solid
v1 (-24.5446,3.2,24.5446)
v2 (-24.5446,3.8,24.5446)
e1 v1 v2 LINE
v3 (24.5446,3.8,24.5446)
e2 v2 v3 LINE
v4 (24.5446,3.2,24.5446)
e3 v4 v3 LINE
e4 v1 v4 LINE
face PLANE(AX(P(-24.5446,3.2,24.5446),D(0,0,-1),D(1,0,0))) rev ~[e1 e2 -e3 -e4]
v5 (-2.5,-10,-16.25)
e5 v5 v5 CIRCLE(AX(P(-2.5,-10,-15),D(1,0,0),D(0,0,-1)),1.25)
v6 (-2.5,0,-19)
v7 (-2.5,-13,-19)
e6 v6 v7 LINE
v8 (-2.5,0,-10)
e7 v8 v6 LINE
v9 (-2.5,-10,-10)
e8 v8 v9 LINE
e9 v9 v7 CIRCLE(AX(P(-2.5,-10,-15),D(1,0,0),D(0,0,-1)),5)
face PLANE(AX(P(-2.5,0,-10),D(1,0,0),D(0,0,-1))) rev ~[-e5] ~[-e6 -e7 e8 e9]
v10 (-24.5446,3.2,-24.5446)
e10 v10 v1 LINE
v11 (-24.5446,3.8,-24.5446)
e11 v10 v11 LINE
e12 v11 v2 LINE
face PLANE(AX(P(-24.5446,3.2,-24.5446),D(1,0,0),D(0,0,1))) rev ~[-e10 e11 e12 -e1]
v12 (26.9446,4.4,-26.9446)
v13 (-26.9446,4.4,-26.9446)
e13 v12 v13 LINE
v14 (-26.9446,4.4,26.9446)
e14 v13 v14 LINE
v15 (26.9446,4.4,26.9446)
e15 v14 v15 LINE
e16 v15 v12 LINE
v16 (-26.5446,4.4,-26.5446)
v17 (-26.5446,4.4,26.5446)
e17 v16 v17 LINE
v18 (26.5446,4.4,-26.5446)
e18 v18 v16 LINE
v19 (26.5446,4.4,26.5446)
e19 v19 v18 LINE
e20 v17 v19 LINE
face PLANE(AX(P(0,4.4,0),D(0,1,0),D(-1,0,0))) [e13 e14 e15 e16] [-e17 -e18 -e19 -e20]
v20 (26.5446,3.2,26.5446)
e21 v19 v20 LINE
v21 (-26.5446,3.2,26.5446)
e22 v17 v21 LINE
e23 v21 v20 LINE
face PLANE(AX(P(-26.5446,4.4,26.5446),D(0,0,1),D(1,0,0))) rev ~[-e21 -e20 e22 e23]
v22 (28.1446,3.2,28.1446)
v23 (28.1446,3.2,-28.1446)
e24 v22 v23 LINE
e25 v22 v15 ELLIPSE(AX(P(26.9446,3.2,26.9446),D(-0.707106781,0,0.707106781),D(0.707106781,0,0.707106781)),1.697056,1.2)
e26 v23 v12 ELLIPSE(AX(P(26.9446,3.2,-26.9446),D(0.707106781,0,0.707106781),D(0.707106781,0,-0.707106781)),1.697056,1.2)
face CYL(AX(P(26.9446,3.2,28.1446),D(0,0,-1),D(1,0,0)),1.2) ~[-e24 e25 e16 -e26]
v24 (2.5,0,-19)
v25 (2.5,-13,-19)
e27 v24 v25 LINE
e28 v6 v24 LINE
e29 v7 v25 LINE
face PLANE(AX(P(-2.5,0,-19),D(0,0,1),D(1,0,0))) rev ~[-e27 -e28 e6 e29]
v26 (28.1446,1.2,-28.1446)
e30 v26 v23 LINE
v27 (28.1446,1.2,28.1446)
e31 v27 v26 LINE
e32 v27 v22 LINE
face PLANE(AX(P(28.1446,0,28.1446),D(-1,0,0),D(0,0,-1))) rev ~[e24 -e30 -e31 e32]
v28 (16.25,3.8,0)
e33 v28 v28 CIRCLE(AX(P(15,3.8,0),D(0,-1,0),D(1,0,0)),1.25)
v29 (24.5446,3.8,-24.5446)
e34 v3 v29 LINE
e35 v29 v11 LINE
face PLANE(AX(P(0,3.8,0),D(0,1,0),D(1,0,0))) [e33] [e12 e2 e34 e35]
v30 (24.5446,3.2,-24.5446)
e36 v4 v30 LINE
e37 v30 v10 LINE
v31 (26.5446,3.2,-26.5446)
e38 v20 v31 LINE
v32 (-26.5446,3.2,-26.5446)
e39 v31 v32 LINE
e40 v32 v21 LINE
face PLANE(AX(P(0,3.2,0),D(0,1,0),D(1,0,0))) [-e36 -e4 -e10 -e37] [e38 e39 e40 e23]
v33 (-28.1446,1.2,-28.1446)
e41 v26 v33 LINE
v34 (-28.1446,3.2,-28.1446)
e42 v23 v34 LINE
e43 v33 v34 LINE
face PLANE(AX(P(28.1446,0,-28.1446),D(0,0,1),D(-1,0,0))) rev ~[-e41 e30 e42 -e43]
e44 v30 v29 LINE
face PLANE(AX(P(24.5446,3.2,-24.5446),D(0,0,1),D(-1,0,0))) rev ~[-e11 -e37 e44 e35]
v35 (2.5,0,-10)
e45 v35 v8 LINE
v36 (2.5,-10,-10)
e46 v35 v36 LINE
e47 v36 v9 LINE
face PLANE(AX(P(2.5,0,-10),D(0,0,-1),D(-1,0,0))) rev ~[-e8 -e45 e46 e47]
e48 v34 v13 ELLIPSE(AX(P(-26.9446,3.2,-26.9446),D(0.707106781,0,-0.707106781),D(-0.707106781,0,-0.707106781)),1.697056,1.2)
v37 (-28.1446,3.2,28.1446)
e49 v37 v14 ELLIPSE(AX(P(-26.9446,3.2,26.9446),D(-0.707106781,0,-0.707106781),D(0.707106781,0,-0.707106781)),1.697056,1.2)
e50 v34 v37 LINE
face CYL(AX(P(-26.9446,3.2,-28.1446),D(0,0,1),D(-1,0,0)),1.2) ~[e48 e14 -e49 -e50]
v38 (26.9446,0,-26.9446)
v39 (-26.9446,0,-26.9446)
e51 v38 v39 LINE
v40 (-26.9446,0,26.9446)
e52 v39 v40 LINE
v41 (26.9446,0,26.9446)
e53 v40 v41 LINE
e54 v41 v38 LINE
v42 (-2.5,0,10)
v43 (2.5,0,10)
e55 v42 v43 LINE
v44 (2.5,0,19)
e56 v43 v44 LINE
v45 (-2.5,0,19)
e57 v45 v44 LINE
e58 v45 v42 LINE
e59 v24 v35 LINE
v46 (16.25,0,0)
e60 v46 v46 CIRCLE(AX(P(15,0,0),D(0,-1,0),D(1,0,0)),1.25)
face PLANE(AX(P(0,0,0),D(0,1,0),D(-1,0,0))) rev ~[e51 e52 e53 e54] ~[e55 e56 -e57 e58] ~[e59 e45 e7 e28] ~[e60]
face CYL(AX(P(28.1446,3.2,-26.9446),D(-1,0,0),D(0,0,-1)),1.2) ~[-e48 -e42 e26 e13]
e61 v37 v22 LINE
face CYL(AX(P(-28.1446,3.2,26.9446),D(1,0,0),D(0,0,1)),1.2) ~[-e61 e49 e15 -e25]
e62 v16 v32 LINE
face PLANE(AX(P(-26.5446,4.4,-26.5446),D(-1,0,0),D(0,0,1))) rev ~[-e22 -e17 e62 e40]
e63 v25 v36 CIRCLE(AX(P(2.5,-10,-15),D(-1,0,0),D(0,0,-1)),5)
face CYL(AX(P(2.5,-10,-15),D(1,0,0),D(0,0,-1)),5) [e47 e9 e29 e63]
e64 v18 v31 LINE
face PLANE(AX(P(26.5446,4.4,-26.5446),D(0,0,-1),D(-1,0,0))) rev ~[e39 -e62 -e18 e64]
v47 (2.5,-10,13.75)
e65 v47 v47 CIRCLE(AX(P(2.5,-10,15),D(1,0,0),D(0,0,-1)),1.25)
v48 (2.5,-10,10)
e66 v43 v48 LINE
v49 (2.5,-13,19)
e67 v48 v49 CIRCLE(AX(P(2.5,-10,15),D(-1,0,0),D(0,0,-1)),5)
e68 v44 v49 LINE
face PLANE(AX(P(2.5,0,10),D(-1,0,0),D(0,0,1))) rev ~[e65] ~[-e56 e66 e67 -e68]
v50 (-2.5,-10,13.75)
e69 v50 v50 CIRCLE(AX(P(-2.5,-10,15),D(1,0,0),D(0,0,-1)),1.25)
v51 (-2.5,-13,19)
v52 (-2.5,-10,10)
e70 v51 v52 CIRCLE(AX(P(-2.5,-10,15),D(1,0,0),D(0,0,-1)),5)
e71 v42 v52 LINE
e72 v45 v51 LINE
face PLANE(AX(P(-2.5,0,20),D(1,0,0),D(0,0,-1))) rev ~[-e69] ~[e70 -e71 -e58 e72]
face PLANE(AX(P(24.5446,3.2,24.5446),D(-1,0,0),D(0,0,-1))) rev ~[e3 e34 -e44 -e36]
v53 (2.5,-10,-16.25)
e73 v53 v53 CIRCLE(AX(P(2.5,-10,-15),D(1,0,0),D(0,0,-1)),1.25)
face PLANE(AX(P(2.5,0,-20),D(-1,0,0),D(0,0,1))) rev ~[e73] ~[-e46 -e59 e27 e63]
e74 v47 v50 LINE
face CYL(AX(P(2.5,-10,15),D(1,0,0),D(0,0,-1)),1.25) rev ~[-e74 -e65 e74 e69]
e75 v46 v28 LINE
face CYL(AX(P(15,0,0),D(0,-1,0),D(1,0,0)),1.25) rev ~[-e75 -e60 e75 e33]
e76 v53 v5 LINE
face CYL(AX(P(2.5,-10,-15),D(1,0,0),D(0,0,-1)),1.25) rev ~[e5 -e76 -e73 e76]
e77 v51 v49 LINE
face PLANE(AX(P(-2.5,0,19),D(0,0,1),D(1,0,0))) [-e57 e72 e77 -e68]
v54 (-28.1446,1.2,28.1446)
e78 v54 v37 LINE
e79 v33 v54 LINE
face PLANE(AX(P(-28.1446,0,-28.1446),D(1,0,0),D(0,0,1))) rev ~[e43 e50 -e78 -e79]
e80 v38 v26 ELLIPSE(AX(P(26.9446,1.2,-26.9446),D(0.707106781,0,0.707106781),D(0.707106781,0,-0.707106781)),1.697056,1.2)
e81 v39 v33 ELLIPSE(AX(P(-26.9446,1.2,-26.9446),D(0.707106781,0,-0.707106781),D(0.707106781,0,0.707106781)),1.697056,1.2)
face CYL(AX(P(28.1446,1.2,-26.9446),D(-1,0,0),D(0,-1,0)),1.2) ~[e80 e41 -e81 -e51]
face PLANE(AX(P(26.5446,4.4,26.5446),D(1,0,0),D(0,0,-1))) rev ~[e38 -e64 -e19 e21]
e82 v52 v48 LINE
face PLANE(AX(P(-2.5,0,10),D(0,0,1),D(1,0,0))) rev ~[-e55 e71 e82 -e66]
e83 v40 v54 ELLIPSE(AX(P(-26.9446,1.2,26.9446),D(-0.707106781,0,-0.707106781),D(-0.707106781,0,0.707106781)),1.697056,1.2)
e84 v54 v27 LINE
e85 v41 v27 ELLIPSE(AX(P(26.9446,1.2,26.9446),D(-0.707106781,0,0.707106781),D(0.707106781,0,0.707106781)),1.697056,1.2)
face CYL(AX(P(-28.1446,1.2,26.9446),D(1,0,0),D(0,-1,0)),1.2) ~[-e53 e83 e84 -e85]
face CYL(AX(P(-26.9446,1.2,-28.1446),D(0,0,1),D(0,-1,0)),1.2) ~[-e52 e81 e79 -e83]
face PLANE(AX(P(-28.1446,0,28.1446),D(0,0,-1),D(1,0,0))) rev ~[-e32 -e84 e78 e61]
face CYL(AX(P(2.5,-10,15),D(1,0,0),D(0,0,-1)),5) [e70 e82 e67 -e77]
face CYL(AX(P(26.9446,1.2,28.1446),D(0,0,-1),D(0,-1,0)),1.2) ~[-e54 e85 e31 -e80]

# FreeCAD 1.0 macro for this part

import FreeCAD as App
import Part
import Sketcher

V = App.Vector


def edges_at(feature, points):
    """Names of the edges that pass closest to the given points."""
    edges = feature.Shape.Edges
    near = lambda p: min(range(len(edges)), key=lambda i: edges[i].distToShape(Part.Vertex(*p))[0])
    return sorted({f"Edge{near(p) + 1}" for p in points})

doc = App.newDocument("Part")
body = doc.addObject("PartDesign::Body", "Body")

sketch1 = body.newObject("Sketcher::SketchObject", "Sketch")
sketch1.AttachmentSupport = (doc.getObject("XZ_Plane"), [""])
sketch1.MapMode = "FlatFace"
sketch1.addGeometry(Part.LineSegment(V(28, 28, 0), V(28, -28, 0)), False)
sketch1.addGeometry(Part.LineSegment(V(28, -28, 0), V(-28, -28, 0)), False)
sketch1.addGeometry(Part.LineSegment(V(-28, -28, 0), V(-28, 28, 0)), False)
sketch1.addGeometry(Part.LineSegment(V(-28, 28, 0), V(28, 28, 0)), False)
sketch1.addConstraint(Sketcher.Constraint("Coincident", 0, 2, 1, 1))
sketch1.addConstraint(Sketcher.Constraint("Coincident", 1, 2, 2, 1))
sketch1.addConstraint(Sketcher.Constraint("Coincident", 2, 2, 3, 1))
sketch1.addConstraint(Sketcher.Constraint("Coincident", 3, 2, 0, 1))
sketch1.addConstraint(Sketcher.Constraint("Vertical", 0))
sketch1.addConstraint(Sketcher.Constraint("Horizontal", 1))
sketch1.addConstraint(Sketcher.Constraint("Vertical", 2))
sketch1.addConstraint(Sketcher.Constraint("Horizontal", 3))
sketch1.addConstraint(Sketcher.Constraint("Symmetric", 0, 2, 2, 2, -1, 1))
sketch1.addConstraint(Sketcher.Constraint("Equal", 3, 0))
sketch1.addConstraint(Sketcher.Constraint("DistanceX", 1, 2, 1, 1, 56.2892))
pad1 = body.newObject("PartDesign::Pad", "Pad")
pad1.Profile = sketch1
pad1.Length = 4.4
pad1.Reversed = True

sketch2 = body.newObject("Sketcher::SketchObject", "Sketch001")
sketch2.AttachmentSupport = (doc.getObject("XZ_Plane"), [""])
sketch2.MapMode = "FlatFace"
sketch2.AttachmentOffset = App.Placement(V(0, 0, -4.4), App.Rotation())
sketch2.addGeometry(Part.LineSegment(V(27, 27, 0), V(27, -27, 0)), False)
sketch2.addGeometry(Part.LineSegment(V(27, -27, 0), V(-27, -27, 0)), False)
sketch2.addGeometry(Part.LineSegment(V(-27, -27, 0), V(-27, 27, 0)), False)
sketch2.addGeometry(Part.LineSegment(V(-27, 27, 0), V(27, 27, 0)), False)
sketch2.addConstraint(Sketcher.Constraint("Coincident", 0, 2, 1, 1))
sketch2.addConstraint(Sketcher.Constraint("Coincident", 1, 2, 2, 1))
sketch2.addConstraint(Sketcher.Constraint("Coincident", 2, 2, 3, 1))
sketch2.addConstraint(Sketcher.Constraint("Coincident", 3, 2, 0, 1))
sketch2.addConstraint(Sketcher.Constraint("Vertical", 0))
sketch2.addConstraint(Sketcher.Constraint("Horizontal", 1))
sketch2.addConstraint(Sketcher.Constraint("Vertical", 2))
sketch2.addConstraint(Sketcher.Constraint("Horizontal", 3))
sketch2.addConstraint(Sketcher.Constraint("Symmetric", 0, 2, 2, 2, -1, 1))
sketch2.addConstraint(Sketcher.Constraint("Equal", 3, 0))
sketch2.addConstraint(Sketcher.Constraint("DistanceX", 1, 2, 1, 1, 53.0892))
pocket1 = body.newObject("PartDesign::Pocket", "Pocket")
pocket1.Profile = sketch2
pocket1.Length = 1.2
pocket1.Reversed = True

sketch3 = body.newObject("Sketcher::SketchObject", "Sketch002")
sketch3.AttachmentSupport = (doc.getObject("XZ_Plane"), [""])
sketch3.MapMode = "FlatFace"
sketch3.AttachmentOffset = App.Placement(V(0, 0, -3.2), App.Rotation())
sketch3.addGeometry(Part.LineSegment(V(25, 25, 0), V(25, -25, 0)), False)
sketch3.addGeometry(Part.LineSegment(V(25, -25, 0), V(-25, -25, 0)), False)
sketch3.addGeometry(Part.LineSegment(V(-25, -25, 0), V(-25, 25, 0)), False)
sketch3.addGeometry(Part.LineSegment(V(-25, 25, 0), V(25, 25, 0)), False)
sketch3.addConstraint(Sketcher.Constraint("Coincident", 0, 2, 1, 1))
sketch3.addConstraint(Sketcher.Constraint("Coincident", 1, 2, 2, 1))
sketch3.addConstraint(Sketcher.Constraint("Coincident", 2, 2, 3, 1))
sketch3.addConstraint(Sketcher.Constraint("Coincident", 3, 2, 0, 1))
sketch3.addConstraint(Sketcher.Constraint("Vertical", 0))
sketch3.addConstraint(Sketcher.Constraint("Horizontal", 1))
sketch3.addConstraint(Sketcher.Constraint("Vertical", 2))
sketch3.addConstraint(Sketcher.Constraint("Horizontal", 3))
sketch3.addConstraint(Sketcher.Constraint("Symmetric", 0, 2, 2, 2, -1, 1))
sketch3.addConstraint(Sketcher.Constraint("Equal", 3, 0))
sketch3.addConstraint(Sketcher.Constraint("DistanceX", 1, 2, 1, 1, 49.0892))
pad2 = body.newObject("PartDesign::Pad", "Pad001")
pad2.Profile = sketch3
pad2.Length = 0.6
pad2.Reversed = True
doc.recompute()

fillet = body.newObject("PartDesign::Fillet", "Fillet")
fillet.Base = (pad2, edges_at(pad2, [
    (0, 4.4, 28.145),
    (28.145, 4.4, 0),
    (0, 4.4, -28.145),
    (-28.145, 4.4, 0),
    (-28.145, 0, 0),
    (0, 0, 28.145),
    (28.145, 0, 0),
    (0, 0, -28.145),
]))
fillet.Radius = 1.2

sketch4 = body.newObject("Sketcher::SketchObject", "Sketch003")
sketch4.AttachmentSupport = (doc.getObject("XZ_Plane"), [""])
sketch4.MapMode = "FlatFace"
sketch4.addGeometry(Part.LineSegment(V(-2, -10, 0), V(-2, -20, 0)), False)
sketch4.addGeometry(Part.LineSegment(V(-2, -20, 0), V(2, -20, 0)), False)
sketch4.addGeometry(Part.LineSegment(V(2, -20, 0), V(2, -10, 0)), False)
sketch4.addGeometry(Part.LineSegment(V(2, -10, 0), V(-2, -10, 0)), False)
sketch4.addGeometry(Part.LineSegment(V(-2, 20, 0), V(-2, 10, 0)), False)
sketch4.addGeometry(Part.LineSegment(V(-2, 10, 0), V(2, 10, 0)), False)
sketch4.addGeometry(Part.LineSegment(V(2, 10, 0), V(2, 20, 0)), False)
sketch4.addGeometry(Part.LineSegment(V(2, 20, 0), V(-2, 20, 0)), False)
sketch4.addConstraint(Sketcher.Constraint("Coincident", 0, 2, 1, 1))
sketch4.addConstraint(Sketcher.Constraint("Coincident", 1, 2, 2, 1))
sketch4.addConstraint(Sketcher.Constraint("Coincident", 2, 2, 3, 1))
sketch4.addConstraint(Sketcher.Constraint("Coincident", 3, 2, 0, 1))
sketch4.addConstraint(Sketcher.Constraint("Coincident", 4, 2, 5, 1))
sketch4.addConstraint(Sketcher.Constraint("Coincident", 5, 2, 6, 1))
sketch4.addConstraint(Sketcher.Constraint("Coincident", 6, 2, 7, 1))
sketch4.addConstraint(Sketcher.Constraint("Coincident", 7, 2, 4, 1))
sketch4.addConstraint(Sketcher.Constraint("Vertical", 0))
sketch4.addConstraint(Sketcher.Constraint("Horizontal", 1))
sketch4.addConstraint(Sketcher.Constraint("Vertical", 2))
sketch4.addConstraint(Sketcher.Constraint("Horizontal", 3))
sketch4.addConstraint(Sketcher.Constraint("Vertical", 4))
sketch4.addConstraint(Sketcher.Constraint("Horizontal", 5))
sketch4.addConstraint(Sketcher.Constraint("Vertical", 6))
sketch4.addConstraint(Sketcher.Constraint("Horizontal", 7))
sketch4.addConstraint(Sketcher.Constraint("Symmetric", 2, 2, 4, 2, -1, 1))
sketch4.addConstraint(Sketcher.Constraint("Symmetric", 0, 2, 6, 2, -1, 1))
sketch4.addConstraint(Sketcher.Constraint("Vertical", 3, 2, 4, 2))
sketch4.addConstraint(Sketcher.Constraint("DistanceX", 1, 1, 1, 2, 5.0))
sketch4.addConstraint(Sketcher.Constraint("DistanceY", 0, 2, 0, 1, 10.0))
sketch4.addConstraint(Sketcher.Constraint("DistanceY", 0, 2, -1, 1, 20.0))
pad3 = body.newObject("PartDesign::Pad", "Pad002")
pad3.Profile = sketch4
pad3.Length = 10

sketch5 = body.newObject("Sketcher::SketchObject", "Sketch004")
sketch5.AttachmentSupport = (doc.getObject("YZ_Plane"), [""])
sketch5.MapMode = "FlatFace"
sketch5.AttachmentOffset = App.Placement(V(0, 0, 2.5), App.Rotation())
sketch5.addGeometry(Part.Circle(V(-10, 15, 0), V(0, 0, 1), 5), False)
sketch5.addGeometry(Part.Circle(V(-10, -15, 0), V(0, 0, 1), 5), False)
sketch5.addConstraint(Sketcher.Constraint("Equal", 0, 1))
sketch5.addConstraint(Sketcher.Constraint("Symmetric", 0, 3, 1, 3, -1))
sketch5.addConstraint(Sketcher.Constraint("Diameter", 0, 10.0))
sketch5.addConstraint(Sketcher.Constraint("DistanceX", 0, 3, -1, 1, 10.0))
sketch5.addConstraint(Sketcher.Constraint("DistanceY", -1, 1, 0, 3, 15.0))
pad4 = body.newObject("PartDesign::Pad", "Pad003")
pad4.Profile = sketch5
pad4.Length = 5
pad4.Reversed = True

sketch6 = body.newObject("Sketcher::SketchObject", "Sketch005")
sketch6.AttachmentSupport = (doc.getObject("YZ_Plane"), [""])
sketch6.MapMode = "FlatFace"
sketch6.AttachmentOffset = App.Placement(V(0, 0, 2.5), App.Rotation())
sketch6.addGeometry(Part.Circle(V(-10, 15, 0), V(0, 0, 1), 1.2), False)
sketch6.addGeometry(Part.Circle(V(-10, -15, 0), V(0, 0, 1), 1.2), False)
sketch6.addConstraint(Sketcher.Constraint("Equal", 0, 1))
sketch6.addConstraint(Sketcher.Constraint("Symmetric", 0, 3, 1, 3, -1))
sketch6.addConstraint(Sketcher.Constraint("Diameter", 0, 2.5))
sketch6.addConstraint(Sketcher.Constraint("DistanceX", 0, 3, -1, 1, 10.0))
sketch6.addConstraint(Sketcher.Constraint("DistanceY", -1, 1, 0, 3, 15.0))
pocket2 = body.newObject("PartDesign::Pocket", "Pocket001")
pocket2.Profile = sketch6
pocket2.Length = 5

sketch7 = body.newObject("Sketcher::SketchObject", "Sketch006")
sketch7.AttachmentSupport = (doc.getObject("XZ_Plane"), [""])
sketch7.MapMode = "FlatFace"
sketch7.addGeometry(Part.LineSegment(V(2.5, -20, 0), V(2.5, -19, 0)), False)
sketch7.addGeometry(Part.LineSegment(V(2.5, -19, 0), V(-2.5, -19, 0)), False)
sketch7.addGeometry(Part.LineSegment(V(-2.5, -19, 0), V(-2.5, -20, 0)), False)
sketch7.addGeometry(Part.LineSegment(V(-2.5, -20, 0), V(2.5, -20, 0)), False)
sketch7.addGeometry(Part.LineSegment(V(-2.5, 19, 0), V(2.5, 19, 0)), False)
sketch7.addGeometry(Part.LineSegment(V(2.5, 19, 0), V(2.5, 20, 0)), False)
sketch7.addGeometry(Part.LineSegment(V(2.5, 20, 0), V(-2.5, 20, 0)), False)
sketch7.addGeometry(Part.LineSegment(V(-2.5, 20, 0), V(-2.5, 19, 0)), False)
sketch7.addConstraint(Sketcher.Constraint("Coincident", 0, 2, 1, 1))
sketch7.addConstraint(Sketcher.Constraint("Coincident", 1, 2, 2, 1))
sketch7.addConstraint(Sketcher.Constraint("Coincident", 2, 2, 3, 1))
sketch7.addConstraint(Sketcher.Constraint("Coincident", 3, 2, 0, 1))
sketch7.addConstraint(Sketcher.Constraint("Coincident", 4, 2, 5, 1))
sketch7.addConstraint(Sketcher.Constraint("Coincident", 5, 2, 6, 1))
sketch7.addConstraint(Sketcher.Constraint("Coincident", 6, 2, 7, 1))
sketch7.addConstraint(Sketcher.Constraint("Coincident", 7, 2, 4, 1))
sketch7.addConstraint(Sketcher.Constraint("Vertical", 0))
sketch7.addConstraint(Sketcher.Constraint("Horizontal", 1))
sketch7.addConstraint(Sketcher.Constraint("Vertical", 2))
sketch7.addConstraint(Sketcher.Constraint("Horizontal", 3))
sketch7.addConstraint(Sketcher.Constraint("Horizontal", 4))
sketch7.addConstraint(Sketcher.Constraint("Vertical", 5))
sketch7.addConstraint(Sketcher.Constraint("Horizontal", 6))
sketch7.addConstraint(Sketcher.Constraint("Vertical", 7))
sketch7.addConstraint(Sketcher.Constraint("Symmetric", 1, 2, 4, 2, -1, 1))
sketch7.addConstraint(Sketcher.Constraint("Symmetric", 3, 2, 6, 2, -1, 1))
sketch7.addConstraint(Sketcher.Constraint("Vertical", 3, 2, 4, 2))
sketch7.addConstraint(Sketcher.Constraint("DistanceY", 0, 1, 0, 2, 1.0))
sketch7.addConstraint(Sketcher.Constraint("DistanceX", 1, 2, 1, 1, 5.0))
sketch7.addConstraint(Sketcher.Constraint("DistanceY", 0, 2, -1, 1, 19.0))
pocket3 = body.newObject("PartDesign::Pocket", "Pocket002")
pocket3.Profile = sketch7
pocket3.Length = 15
pocket3.Reversed = True

sketch8 = body.newObject("Sketcher::SketchObject", "Sketch007")
sketch8.AttachmentSupport = (doc.getObject("XZ_Plane"), [""])
sketch8.MapMode = "FlatFace"
sketch8.addGeometry(Part.Circle(V(15, 0, 0), V(0, 0, 1), 1.2), False)
sketch8.addConstraint(Sketcher.Constraint("PointOnObject", 0, 3, -1))
sketch8.addConstraint(Sketcher.Constraint("Diameter", 0, 2.5))
sketch8.addConstraint(Sketcher.Constraint("DistanceX", -1, 1, 0, 3, 15.0))
pocket4 = body.newObject("PartDesign::Pocket", "Pocket003")
pocket4.Profile = sketch8
pocket4.Length = 10

doc.recompute()
